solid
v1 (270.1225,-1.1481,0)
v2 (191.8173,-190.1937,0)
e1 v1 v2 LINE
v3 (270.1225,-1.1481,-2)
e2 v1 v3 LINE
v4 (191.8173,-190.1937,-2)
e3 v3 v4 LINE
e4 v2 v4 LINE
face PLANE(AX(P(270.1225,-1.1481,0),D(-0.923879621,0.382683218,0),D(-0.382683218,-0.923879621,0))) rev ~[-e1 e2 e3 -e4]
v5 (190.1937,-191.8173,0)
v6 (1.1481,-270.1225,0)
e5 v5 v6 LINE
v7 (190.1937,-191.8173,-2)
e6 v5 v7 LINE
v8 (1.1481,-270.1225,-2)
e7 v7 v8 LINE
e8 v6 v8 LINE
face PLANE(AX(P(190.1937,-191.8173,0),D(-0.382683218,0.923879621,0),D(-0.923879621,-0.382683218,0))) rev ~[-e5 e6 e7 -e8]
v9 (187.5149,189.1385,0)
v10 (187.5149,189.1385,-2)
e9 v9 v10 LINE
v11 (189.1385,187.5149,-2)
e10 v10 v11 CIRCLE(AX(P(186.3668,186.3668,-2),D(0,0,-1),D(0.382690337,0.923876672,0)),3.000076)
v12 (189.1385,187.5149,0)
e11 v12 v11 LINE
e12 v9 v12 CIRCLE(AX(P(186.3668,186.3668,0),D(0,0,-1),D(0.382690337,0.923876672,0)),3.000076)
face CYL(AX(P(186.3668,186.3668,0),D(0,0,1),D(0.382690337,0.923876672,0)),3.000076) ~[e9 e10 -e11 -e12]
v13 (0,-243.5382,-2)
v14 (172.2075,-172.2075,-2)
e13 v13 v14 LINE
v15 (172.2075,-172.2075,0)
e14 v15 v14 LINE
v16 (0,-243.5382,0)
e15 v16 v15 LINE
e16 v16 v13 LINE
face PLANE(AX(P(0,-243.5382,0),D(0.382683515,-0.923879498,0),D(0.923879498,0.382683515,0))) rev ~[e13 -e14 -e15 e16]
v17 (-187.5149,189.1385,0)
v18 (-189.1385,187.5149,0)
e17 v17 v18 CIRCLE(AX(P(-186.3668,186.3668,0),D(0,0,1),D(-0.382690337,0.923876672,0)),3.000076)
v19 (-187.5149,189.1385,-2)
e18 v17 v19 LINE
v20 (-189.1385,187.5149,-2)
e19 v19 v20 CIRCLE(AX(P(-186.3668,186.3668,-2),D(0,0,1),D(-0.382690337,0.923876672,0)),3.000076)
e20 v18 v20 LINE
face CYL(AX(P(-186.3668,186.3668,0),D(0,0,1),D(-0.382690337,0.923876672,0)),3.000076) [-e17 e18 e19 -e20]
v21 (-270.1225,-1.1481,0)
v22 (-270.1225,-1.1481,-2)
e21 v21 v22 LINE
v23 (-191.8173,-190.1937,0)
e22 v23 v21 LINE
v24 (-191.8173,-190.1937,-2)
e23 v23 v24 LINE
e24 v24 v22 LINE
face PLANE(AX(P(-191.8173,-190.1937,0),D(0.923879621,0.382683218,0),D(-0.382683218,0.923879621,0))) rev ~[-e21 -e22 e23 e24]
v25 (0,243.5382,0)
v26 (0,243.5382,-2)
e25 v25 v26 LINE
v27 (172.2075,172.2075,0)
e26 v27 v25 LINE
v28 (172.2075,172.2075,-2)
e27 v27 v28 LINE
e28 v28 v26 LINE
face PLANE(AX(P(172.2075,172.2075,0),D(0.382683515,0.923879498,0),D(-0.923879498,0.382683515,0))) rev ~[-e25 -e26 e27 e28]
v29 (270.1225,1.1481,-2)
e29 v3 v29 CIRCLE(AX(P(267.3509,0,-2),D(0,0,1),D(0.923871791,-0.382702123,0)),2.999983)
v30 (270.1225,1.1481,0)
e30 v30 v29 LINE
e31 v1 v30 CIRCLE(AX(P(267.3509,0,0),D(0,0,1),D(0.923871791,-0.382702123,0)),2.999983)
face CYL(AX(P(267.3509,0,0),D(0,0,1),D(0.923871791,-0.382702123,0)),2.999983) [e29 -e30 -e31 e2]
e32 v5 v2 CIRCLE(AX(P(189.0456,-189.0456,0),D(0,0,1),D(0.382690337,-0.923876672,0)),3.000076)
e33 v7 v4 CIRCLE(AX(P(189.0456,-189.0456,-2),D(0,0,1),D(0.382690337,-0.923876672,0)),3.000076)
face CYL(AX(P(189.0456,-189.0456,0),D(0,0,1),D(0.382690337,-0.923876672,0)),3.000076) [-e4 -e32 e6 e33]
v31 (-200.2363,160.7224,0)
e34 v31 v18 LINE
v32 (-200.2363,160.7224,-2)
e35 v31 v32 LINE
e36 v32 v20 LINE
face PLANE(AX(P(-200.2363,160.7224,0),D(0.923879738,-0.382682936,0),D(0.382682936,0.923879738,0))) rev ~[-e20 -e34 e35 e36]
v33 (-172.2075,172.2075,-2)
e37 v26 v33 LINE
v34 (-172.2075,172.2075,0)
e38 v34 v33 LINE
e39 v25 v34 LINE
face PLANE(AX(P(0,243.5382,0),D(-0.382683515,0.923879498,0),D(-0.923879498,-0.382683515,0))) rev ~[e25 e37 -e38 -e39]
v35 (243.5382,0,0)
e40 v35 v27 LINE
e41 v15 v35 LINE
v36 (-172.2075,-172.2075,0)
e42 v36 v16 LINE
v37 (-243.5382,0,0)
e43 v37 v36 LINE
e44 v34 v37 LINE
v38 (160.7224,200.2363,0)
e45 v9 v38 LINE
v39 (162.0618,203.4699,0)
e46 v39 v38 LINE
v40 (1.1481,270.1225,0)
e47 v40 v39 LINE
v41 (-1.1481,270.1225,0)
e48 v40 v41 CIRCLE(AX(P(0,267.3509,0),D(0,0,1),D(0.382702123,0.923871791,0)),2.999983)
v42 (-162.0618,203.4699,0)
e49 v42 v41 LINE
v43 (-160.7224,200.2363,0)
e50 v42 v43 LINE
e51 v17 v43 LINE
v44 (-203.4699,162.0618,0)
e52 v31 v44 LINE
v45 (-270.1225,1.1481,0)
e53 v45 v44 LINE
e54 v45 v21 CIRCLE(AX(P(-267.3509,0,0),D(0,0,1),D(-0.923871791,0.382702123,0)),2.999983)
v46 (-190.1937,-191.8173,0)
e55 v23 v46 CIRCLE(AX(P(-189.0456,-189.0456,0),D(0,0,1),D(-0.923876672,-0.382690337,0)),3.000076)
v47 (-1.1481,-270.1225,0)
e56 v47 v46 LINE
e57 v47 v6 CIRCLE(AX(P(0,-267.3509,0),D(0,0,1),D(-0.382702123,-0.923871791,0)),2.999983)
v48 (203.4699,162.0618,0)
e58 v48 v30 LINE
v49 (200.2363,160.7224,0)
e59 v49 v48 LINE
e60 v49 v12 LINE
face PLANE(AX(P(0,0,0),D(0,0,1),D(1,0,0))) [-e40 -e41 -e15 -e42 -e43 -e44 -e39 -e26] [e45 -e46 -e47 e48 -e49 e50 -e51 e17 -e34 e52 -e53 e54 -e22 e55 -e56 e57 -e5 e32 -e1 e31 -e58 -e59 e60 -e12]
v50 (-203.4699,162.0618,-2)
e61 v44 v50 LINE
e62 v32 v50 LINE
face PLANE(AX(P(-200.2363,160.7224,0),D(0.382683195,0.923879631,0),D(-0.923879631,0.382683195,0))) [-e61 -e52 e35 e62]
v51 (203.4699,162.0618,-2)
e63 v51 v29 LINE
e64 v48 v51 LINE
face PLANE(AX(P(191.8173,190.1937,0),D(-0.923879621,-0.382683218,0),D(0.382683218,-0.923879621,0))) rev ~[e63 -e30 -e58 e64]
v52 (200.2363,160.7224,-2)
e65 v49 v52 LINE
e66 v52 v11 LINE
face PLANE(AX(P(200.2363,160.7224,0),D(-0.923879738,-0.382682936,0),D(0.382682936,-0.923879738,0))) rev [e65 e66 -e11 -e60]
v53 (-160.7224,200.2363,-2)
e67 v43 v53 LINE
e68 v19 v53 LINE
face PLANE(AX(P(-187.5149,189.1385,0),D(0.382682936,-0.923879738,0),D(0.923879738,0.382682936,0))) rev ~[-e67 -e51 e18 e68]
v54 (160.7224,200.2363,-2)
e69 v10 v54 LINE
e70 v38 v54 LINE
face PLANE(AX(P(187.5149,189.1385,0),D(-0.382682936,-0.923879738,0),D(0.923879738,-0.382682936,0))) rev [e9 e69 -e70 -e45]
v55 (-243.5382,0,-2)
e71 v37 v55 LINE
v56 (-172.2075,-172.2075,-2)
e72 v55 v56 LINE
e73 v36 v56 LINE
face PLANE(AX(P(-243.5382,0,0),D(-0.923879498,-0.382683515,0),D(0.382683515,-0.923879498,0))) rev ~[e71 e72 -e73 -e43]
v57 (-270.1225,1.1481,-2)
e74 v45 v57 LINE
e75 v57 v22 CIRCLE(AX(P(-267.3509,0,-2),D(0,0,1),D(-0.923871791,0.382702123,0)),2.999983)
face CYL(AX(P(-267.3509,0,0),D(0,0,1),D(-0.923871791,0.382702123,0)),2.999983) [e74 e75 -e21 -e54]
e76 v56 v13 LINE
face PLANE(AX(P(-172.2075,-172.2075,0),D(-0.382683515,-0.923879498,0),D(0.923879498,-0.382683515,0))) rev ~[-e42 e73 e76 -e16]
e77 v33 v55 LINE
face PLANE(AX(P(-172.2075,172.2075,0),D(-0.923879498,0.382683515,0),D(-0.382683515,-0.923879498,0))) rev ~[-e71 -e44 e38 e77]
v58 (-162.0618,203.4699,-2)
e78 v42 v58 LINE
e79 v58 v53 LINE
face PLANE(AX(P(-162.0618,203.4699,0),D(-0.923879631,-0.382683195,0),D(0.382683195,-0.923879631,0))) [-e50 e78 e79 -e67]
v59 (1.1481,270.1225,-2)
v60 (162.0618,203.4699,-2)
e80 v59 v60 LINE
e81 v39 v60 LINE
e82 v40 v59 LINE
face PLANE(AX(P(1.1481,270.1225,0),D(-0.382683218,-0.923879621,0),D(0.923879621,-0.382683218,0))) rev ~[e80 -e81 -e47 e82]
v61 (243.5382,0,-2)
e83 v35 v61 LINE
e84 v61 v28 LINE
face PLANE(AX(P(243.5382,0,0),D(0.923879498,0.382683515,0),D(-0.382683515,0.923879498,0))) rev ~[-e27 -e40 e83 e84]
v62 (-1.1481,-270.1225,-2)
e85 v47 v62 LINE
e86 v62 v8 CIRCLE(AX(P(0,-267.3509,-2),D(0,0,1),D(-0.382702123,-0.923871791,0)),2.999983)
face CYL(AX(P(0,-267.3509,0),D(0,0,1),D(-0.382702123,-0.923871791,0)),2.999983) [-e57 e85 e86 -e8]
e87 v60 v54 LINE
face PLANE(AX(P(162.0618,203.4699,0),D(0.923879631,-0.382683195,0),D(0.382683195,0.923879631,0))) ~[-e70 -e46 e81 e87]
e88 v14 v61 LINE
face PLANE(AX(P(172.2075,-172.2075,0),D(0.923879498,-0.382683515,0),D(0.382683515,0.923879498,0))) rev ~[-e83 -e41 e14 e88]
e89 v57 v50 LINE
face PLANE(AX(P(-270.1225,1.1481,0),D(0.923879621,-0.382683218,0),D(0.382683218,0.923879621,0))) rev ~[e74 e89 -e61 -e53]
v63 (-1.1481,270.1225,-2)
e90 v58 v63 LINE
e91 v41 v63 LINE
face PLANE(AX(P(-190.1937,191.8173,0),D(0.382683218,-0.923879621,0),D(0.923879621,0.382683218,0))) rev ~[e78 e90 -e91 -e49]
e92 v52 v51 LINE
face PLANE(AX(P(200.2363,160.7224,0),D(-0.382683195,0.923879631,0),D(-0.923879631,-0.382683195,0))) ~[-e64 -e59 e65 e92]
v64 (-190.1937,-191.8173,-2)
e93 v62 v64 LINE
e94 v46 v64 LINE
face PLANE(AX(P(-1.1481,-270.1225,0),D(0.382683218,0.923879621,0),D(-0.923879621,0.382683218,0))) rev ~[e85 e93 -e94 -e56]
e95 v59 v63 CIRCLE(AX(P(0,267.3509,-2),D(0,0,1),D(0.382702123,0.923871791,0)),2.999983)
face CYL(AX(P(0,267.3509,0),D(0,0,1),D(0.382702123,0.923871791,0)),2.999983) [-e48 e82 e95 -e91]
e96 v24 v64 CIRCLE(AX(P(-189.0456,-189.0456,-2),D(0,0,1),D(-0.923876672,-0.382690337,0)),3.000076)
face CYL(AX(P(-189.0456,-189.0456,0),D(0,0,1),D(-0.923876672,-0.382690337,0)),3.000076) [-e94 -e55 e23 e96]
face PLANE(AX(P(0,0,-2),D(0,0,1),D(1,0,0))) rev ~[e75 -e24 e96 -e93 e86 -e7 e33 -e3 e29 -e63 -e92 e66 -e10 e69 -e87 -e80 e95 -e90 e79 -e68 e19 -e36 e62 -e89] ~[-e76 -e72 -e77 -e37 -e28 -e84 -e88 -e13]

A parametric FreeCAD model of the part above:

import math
import FreeCAD as App
import Part
import Sketcher
from FreeCAD import Vector
Q = App.Units.Quantity

doc = App.newDocument("Part")
body = doc.addObject("PartDesign::Body", "Body")

# Sketch on XY plane
sketch1 = body.newObject("Sketcher::SketchObject", "Sketch")
sketch1.AttachmentSupport = (doc.getObject("XY_Plane"), [""])
sketch1.MapMode = "FlatFace"
sketch1.addGeometry([
    Part.LineSegment(Vector(190.2, 191.8, 0), Vector(1.1, 270.1, 0)),  # 0
    Part.ArcOfCircle(Part.Circle(Vector(0, 267.4, 0), Vector(0, 0, 1), 3), math.radians(67), math.radians(113)),  # 1
    Part.LineSegment(Vector(-1.1, 270.1, 0), Vector(-190.2, 191.8, 0)),  # 2
    Part.ArcOfCircle(Part.Circle(Vector(-189, 189, 0), Vector(0, 0, 1), 3), math.radians(113), math.radians(157)),  # 3
    Part.LineSegment(Vector(-191.8, 190.2, 0), Vector(-270.1, 1.1, 0)),  # 4
    Part.ArcOfCircle(Part.Circle(Vector(-267.4, 0, 0), Vector(0, 0, 1), 3), math.radians(157), math.radians(203)),  # 5
    Part.LineSegment(Vector(-270.1, -1.1, 0), Vector(-191.8, -190.2, 0)),  # 6
    Part.ArcOfCircle(Part.Circle(Vector(-189, -189, 0), Vector(0, 0, 1), 3), math.radians(-157), math.radians(-113)),  # 7
    Part.LineSegment(Vector(-190.2, -191.8, 0), Vector(-1.1, -270.1, 0)),  # 8
    Part.ArcOfCircle(Part.Circle(Vector(0, -267.4, 0), Vector(0, 0, 1), 3), math.radians(-113), math.radians(-67)),  # 9
    Part.LineSegment(Vector(1.1, -270.1, 0), Vector(190.2, -191.8, 0)),  # 10
    Part.ArcOfCircle(Part.Circle(Vector(189, -189, 0), Vector(0, 0, 1), 3), math.radians(-67), math.radians(-23)),  # 11
    Part.LineSegment(Vector(191.8, -190.2, 0), Vector(270.1, -1.1, 0)),  # 12
    Part.ArcOfCircle(Part.Circle(Vector(267.4, 0, 0), Vector(0, 0, 1), 3), math.radians(-23), math.radians(23)),  # 13
    Part.LineSegment(Vector(270.1, 1.1, 0), Vector(191.8, 190.2, 0)),  # 14
    Part.ArcOfCircle(Part.Circle(Vector(189, 189, 0), Vector(0, 0, 1), 3), math.radians(23), math.radians(67)),  # 15
    Part.LineSegment(Vector(0, 243.5, 0), Vector(172.2, 172.2, 0)),  # 16
    Part.LineSegment(Vector(172.2, 172.2, 0), Vector(243.5, 0, 0)),  # 17
    Part.LineSegment(Vector(243.5, 0, 0), Vector(172.2, -172.2, 0)),  # 18
    Part.LineSegment(Vector(172.2, -172.2, 0), Vector(0, -243.5, 0)),  # 19
    Part.LineSegment(Vector(0, -243.5, 0), Vector(-172.2, -172.2, 0)),  # 20
    Part.LineSegment(Vector(-172.2, -172.2, 0), Vector(-243.5, 0, 0)),  # 21
    Part.LineSegment(Vector(-243.5, 0, 0), Vector(-172.2, 172.2, 0)),  # 22
    Part.LineSegment(Vector(-172.2, 172.2, 0), Vector(0, 243.5, 0)),  # 23
], False)
sketch1.addConstraint([
    Sketcher.Constraint("Tangent", 0, 2, 1, 1),
    Sketcher.Constraint("Tangent", 1, 2, 2, 1),
    Sketcher.Constraint("Tangent", 2, 2, 3, 1),
    Sketcher.Constraint("Tangent", 3, 2, 4, 1),
    Sketcher.Constraint("Tangent", 4, 2, 5, 1),
    Sketcher.Constraint("Tangent", 5, 2, 6, 1),
    Sketcher.Constraint("Tangent", 6, 2, 7, 1),
    Sketcher.Constraint("Tangent", 7, 2, 8, 1),
    Sketcher.Constraint("Tangent", 8, 2, 9, 1),
    Sketcher.Constraint("Tangent", 9, 2, 10, 1),
    Sketcher.Constraint("Tangent", 10, 2, 11, 1),
    Sketcher.Constraint("Tangent", 11, 2, 12, 1),
    Sketcher.Constraint("Tangent", 12, 2, 13, 1),
    Sketcher.Constraint("Tangent", 13, 2, 14, 1),
    Sketcher.Constraint("Tangent", 14, 2, 15, 1),
    Sketcher.Constraint("Tangent", 15, 2, 0, 1),
    Sketcher.Constraint("Coincident", 16, 2, 17, 1),
    Sketcher.Constraint("Coincident", 17, 2, 18, 1),
    Sketcher.Constraint("Coincident", 18, 2, 19, 1),
    Sketcher.Constraint("Coincident", 19, 2, 20, 1),
    Sketcher.Constraint("Coincident", 20, 2, 21, 1),
    Sketcher.Constraint("Coincident", 21, 2, 22, 1),
    Sketcher.Constraint("Coincident", 22, 2, 23, 1),
    Sketcher.Constraint("Coincident", 23, 2, 16, 1),
    Sketcher.Constraint("Equal", 1, 3),
    Sketcher.Constraint("Equal", 3, 5),
    Sketcher.Constraint("Equal", 5, 7),
    Sketcher.Constraint("Equal", 7, 9),
    Sketcher.Constraint("Equal", 9, 11),
    Sketcher.Constraint("Equal", 11, 13),
    Sketcher.Constraint("Equal", 13, 15),
    Sketcher.Constraint("Symmetric", 1, 3, 9, 3, -1, 1),
    Sketcher.Constraint("Symmetric", 3, 3, 11, 3, -1, 1),
    Sketcher.Constraint("Symmetric", 5, 3, 13, 3, -1, 1),
    Sketcher.Constraint("Symmetric", 7, 3, 15, 3, -1, 1),
    Sketcher.Constraint("Symmetric", 16, 2, 20, 2, -1, 1),
    Sketcher.Constraint("Symmetric", 17, 2, 21, 2, -1, 1),
    Sketcher.Constraint("Symmetric", 18, 2, 22, 2, -1, 1),
    Sketcher.Constraint("Symmetric", 19, 2, 23, 2, -1, 1),
    Sketcher.Constraint("Symmetric", 7, 3, 11, 3, -2),
    Sketcher.Constraint("Symmetric", 18, 2, 20, 2, -2),
    Sketcher.Constraint("PointOnObject", 1, 3, -2),
    Sketcher.Constraint("PointOnObject", 5, 3, -1),
    Sketcher.Constraint("PointOnObject", 17, 2, -1),
    Sketcher.Constraint("PointOnObject", 19, 2, -2),
    Sketcher.Constraint("Perpendicular", 0, 4),
    Sketcher.Constraint("Perpendicular", 12, 16),
    Sketcher.Constraint("Parallel", 14, 17),
    Sketcher.Constraint("Equal", 2, 4),
    Sketcher.Constraint("Equal", 16, 17),
    Sketcher.Constraint("Radius", 1, Q("3 mm")),
    Sketcher.Constraint("Angle", 0, Q("157.5 deg")),
    Sketcher.Constraint("Distance", 16, Q("186.396 mm")),
    Sketcher.Constraint("DistanceY", -1, 1, 1, 3, Q("267.351 mm")),
])
pad1 = body.newObject("PartDesign::Pad", "Pad")
pad1.Profile = sketch1
pad1.Length = 2
pad1.Reversed = True

# Sketch on XY plane
sketch2 = body.newObject("Sketcher::SketchObject", "Sketch001")
sketch2.AttachmentSupport = (doc.getObject("XY_Plane"), [""])
sketch2.MapMode = "FlatFace"
sketch2.addGeometry([
    Part.ArcOfCircle(Part.Circle(Vector(-189, 189, 0), Vector(0, 0, 1), 3), math.radians(113), math.radians(157)),  # 0
    Part.LineSegment(Vector(-191.8, 190.2, 0), Vector(-203.5, 162.1, 0)),  # 1
    Part.LineSegment(Vector(-203.5, 162.1, 0), Vector(-200.2, 160.7, 0)),  # 2
    Part.LineSegment(Vector(-200.2, 160.7, 0), Vector(-189.1, 187.5, 0)),  # 3
    Part.ArcOfCircle(Part.Circle(Vector(-186.4, 186.4, 0), Vector(0, 0, 1), 3), math.radians(113), math.radians(157)),  # 4
    Part.LineSegment(Vector(-187.5, 189.1, 0), Vector(-160.7, 200.2, 0)),  # 5
    Part.LineSegment(Vector(-160.7, 200.2, 0), Vector(-162.1, 203.5, 0)),  # 6
    Part.LineSegment(Vector(-162.1, 203.5, 0), Vector(-190.2, 191.8, 0)),  # 7
], False)
sketch2.addConstraint([
    Sketcher.Constraint("Tangent", 0, 2, 1, 1),
    Sketcher.Constraint("Coincident", 1, 2, 2, 1),
    Sketcher.Constraint("Coincident", 2, 2, 3, 1),
    Sketcher.Constraint("Tangent", 3, 2, 4, 2),
    Sketcher.Constraint("Tangent", 4, 1, 5, 1),
    Sketcher.Constraint("Coincident", 5, 2, 6, 1),
    Sketcher.Constraint("Coincident", 6, 2, 7, 1),
    Sketcher.Constraint("Tangent", 7, 2, 0, 1),
    Sketcher.Constraint("Equal", 0, 4),
    Sketcher.Constraint("Perpendicular", 1, 2),
    Sketcher.Constraint("Perpendicular", 2, 3),
    Sketcher.Constraint("Perpendicular", 5, 6),
    Sketcher.Constraint("Perpendicular", 6, 7),
    Sketcher.Constraint("Equal", 3, 5),
    Sketcher.Constraint("Equal", 2, 6),
    Sketcher.Constraint("Radius", 0, Q("3 mm")),
    Sketcher.Constraint("Distance", 3, Q("29 mm")),
    Sketcher.Constraint("Distance", 2, Q("3.5 mm")),
    Sketcher.Constraint("Angle", 1, Q("-112.5 deg")),
    Sketcher.Constraint("Angle", 5, Q("22.5 deg")),
    Sketcher.Constraint("DistanceX", 1, 2, -1, 1, Q("203.47 mm")),
    Sketcher.Constraint("DistanceY", -1, 1, 6, 2, Q("203.47 mm")),
])
pocket1 = body.newObject("PartDesign::Pocket", "Pocket")
pocket1.Profile = sketch2
pocket1.Length = 2
doc.recompute()

mirrored = body.newObject("PartDesign::Mirrored", "Mirrored")
mirrored.Originals = [pocket1]
mirrored.MirrorPlane = (doc.getObject("YZ_Plane"), [""])
body.Tip = mirrored

doc.recompute()
